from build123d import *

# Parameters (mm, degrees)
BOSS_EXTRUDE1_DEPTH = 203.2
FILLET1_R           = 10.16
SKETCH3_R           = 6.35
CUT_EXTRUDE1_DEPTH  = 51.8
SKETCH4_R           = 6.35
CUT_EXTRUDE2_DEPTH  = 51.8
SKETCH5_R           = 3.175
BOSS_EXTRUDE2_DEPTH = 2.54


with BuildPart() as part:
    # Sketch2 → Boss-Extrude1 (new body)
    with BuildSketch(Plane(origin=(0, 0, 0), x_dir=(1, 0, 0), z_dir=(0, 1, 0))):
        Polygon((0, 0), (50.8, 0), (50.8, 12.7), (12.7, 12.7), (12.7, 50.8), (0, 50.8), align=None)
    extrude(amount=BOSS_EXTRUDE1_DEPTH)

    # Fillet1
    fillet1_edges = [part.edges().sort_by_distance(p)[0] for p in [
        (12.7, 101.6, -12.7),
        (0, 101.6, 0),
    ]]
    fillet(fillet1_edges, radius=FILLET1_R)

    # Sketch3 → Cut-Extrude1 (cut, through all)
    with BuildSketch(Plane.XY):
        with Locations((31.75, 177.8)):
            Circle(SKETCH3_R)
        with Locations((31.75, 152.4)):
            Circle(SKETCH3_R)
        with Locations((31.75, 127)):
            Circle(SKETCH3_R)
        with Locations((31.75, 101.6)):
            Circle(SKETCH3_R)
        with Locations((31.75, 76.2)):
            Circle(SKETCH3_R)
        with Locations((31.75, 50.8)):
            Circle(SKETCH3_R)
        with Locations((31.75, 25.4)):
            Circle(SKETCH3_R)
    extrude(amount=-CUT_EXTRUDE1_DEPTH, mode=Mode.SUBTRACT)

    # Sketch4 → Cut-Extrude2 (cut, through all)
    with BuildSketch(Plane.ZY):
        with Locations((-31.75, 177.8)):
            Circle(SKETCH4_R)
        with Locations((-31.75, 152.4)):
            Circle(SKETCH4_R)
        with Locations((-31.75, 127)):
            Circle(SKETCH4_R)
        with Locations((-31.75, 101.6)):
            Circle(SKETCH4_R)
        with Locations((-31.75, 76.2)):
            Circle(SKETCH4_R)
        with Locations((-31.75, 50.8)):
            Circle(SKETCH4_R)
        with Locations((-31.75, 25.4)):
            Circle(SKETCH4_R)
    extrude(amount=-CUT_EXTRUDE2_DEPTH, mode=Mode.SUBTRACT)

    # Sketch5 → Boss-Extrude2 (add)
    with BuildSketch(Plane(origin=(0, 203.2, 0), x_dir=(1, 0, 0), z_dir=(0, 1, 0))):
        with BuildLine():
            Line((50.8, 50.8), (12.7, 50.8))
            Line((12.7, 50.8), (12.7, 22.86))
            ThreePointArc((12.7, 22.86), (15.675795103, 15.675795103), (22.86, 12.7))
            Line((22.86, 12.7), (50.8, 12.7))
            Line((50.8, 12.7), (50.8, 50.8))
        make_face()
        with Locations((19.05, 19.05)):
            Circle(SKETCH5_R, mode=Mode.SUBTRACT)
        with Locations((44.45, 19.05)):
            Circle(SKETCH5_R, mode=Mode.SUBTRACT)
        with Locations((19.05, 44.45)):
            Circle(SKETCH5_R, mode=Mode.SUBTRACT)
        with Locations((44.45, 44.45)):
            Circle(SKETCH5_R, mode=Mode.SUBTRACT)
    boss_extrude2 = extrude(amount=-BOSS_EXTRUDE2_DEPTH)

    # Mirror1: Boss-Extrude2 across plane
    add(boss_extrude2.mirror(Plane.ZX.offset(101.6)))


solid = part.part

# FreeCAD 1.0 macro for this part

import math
import FreeCAD as App
import Part
import Sketcher
from FreeCAD import Vector
Q = App.Units.Quantity


def edges_at(feature, points):
    """Names of the edges that pass closest to the given points."""
    edges = feature.Shape.Edges
    near = lambda p: min(range(len(edges)), key=lambda i: edges[i].distToShape(Part.Vertex(*p))[0])
    return sorted({f"Edge{near(p) + 1}" for p in points})

doc = App.newDocument("Part")
body = doc.addObject("PartDesign::Body", "Body")

sketch1 = body.newObject("Sketcher::SketchObject", "Sketch")
sketch1.AttachmentSupport = (doc.getObject("XZ_Plane"), [""])
sketch1.MapMode = "FlatFace"
sketch1.addGeometry(Part.LineSegment(Vector(0, 0, 0), Vector(50.8, 0, 0)), False)
sketch1.addGeometry(Part.LineSegment(Vector(50.8, 0, 0), Vector(50.8, -12.7, 0)), False)
sketch1.addGeometry(Part.LineSegment(Vector(50.8, -12.7, 0), Vector(12.7, -12.7, 0)), False)
sketch1.addGeometry(Part.LineSegment(Vector(12.7, -12.7, 0), Vector(12.7, -50.8, 0)), False)
sketch1.addGeometry(Part.LineSegment(Vector(12.7, -50.8, 0), Vector(0, -50.8, 0)), False)
sketch1.addGeometry(Part.LineSegment(Vector(0, -50.8, 0), Vector(0, 0, 0)), False)
sketch1.addConstraint(Sketcher.Constraint("Coincident", 0, 2, 1, 1))
sketch1.addConstraint(Sketcher.Constraint("Coincident", 1, 2, 2, 1))
sketch1.addConstraint(Sketcher.Constraint("Coincident", 2, 2, 3, 1))
sketch1.addConstraint(Sketcher.Constraint("Coincident", 3, 2, 4, 1))
sketch1.addConstraint(Sketcher.Constraint("Coincident", 4, 2, 5, 1))
sketch1.addConstraint(Sketcher.Constraint("Coincident", 5, 2, 0, 1))
sketch1.addConstraint(Sketcher.Constraint("Horizontal", 0))
sketch1.addConstraint(Sketcher.Constraint("Vertical", 1))
sketch1.addConstraint(Sketcher.Constraint("Horizontal", 2))
sketch1.addConstraint(Sketcher.Constraint("Vertical", 3))
sketch1.addConstraint(Sketcher.Constraint("Horizontal", 4))
sketch1.addConstraint(Sketcher.Constraint("Vertical", 5))
sketch1.addConstraint(Sketcher.Constraint("Coincident", 5, 2, -1, 1))
sketch1.addConstraint(Sketcher.Constraint("Equal", 4, 1))
sketch1.addConstraint(Sketcher.Constraint("Equal", 2, 3))
sketch1.addConstraint(Sketcher.Constraint("DistanceX", 0, 1, 0, 2, Q("2 in")))
sketch1.addConstraint(Sketcher.Constraint("DistanceX", 2, 2, 2, 1, Q("1.5 in")))
pad1 = body.newObject("PartDesign::Pad", "Pad")
pad1.Profile = sketch1
pad1.Length = Q("8 in")
pad1.Reversed = True
doc.recompute()

fillet = body.newObject("PartDesign::Fillet", "Fillet")
fillet.Base = (pad1, edges_at(pad1, [(12.7, 101.6, -12.7), (0, 101.6, 0)]))
fillet.Radius = Q("0.4 in")

sketch2 = body.newObject("Sketcher::SketchObject", "Sketch001")
sketch2.AttachmentSupport = (doc.getObject("XY_Plane"), [""])
sketch2.MapMode = "FlatFace"
sketch2.addGeometry(Part.Circle(Vector(31.75, 177.8, 0), Vector(0, 0, 1), 6.35), False)
sketch2.addGeometry(Part.Circle(Vector(31.75, 152.4, 0), Vector(0, 0, 1), 6.35), False)
sketch2.addGeometry(Part.Circle(Vector(31.75, 127, 0), Vector(0, 0, 1), 6.35), False)
sketch2.addGeometry(Part.Circle(Vector(31.75, 101.6, 0), Vector(0, 0, 1), 6.35), False)
sketch2.addGeometry(Part.Circle(Vector(31.75, 76.2, 0), Vector(0, 0, 1), 6.35), False)
sketch2.addGeometry(Part.Circle(Vector(31.75, 50.8, 0), Vector(0, 0, 1), 6.35), False)
sketch2.addGeometry(Part.Circle(Vector(31.75, 25.4, 0), Vector(0, 0, 1), 6.35), False)
sketch2.addConstraint(Sketcher.Constraint("Equal", 0, 1))
sketch2.addConstraint(Sketcher.Constraint("Equal", 1, 2))
sketch2.addConstraint(Sketcher.Constraint("Equal", 2, 3))
sketch2.addConstraint(Sketcher.Constraint("Equal", 3, 4))
sketch2.addConstraint(Sketcher.Constraint("Equal", 4, 5))
sketch2.addConstraint(Sketcher.Constraint("Equal", 5, 6))
sketch2.addConstraint(Sketcher.Constraint("Vertical", 0, 3, 1, 3))
sketch2.addConstraint(Sketcher.Constraint("Vertical", 1, 3, 2, 3))
sketch2.addConstraint(Sketcher.Constraint("Vertical", 2, 3, 3, 3))
sketch2.addConstraint(Sketcher.Constraint("Vertical", 3, 3, 4, 3))
sketch2.addConstraint(Sketcher.Constraint("Vertical", 4, 3, 5, 3))
sketch2.addConstraint(Sketcher.Constraint("Vertical", 5, 3, 6, 3))
sketch2.addConstraint(Sketcher.Constraint("Diameter", 0, Q("0.5 in")))
sketch2.addConstraint(Sketcher.Constraint("DistanceY", -1, 1, 0, 3, Q("7 in")))
sketch2.addConstraint(Sketcher.Constraint("DistanceY", -1, 1, 1, 3, Q("6 in")))
sketch2.addConstraint(Sketcher.Constraint("DistanceY", -1, 1, 2, 3, Q("5 in")))
sketch2.addConstraint(Sketcher.Constraint("DistanceY", -1, 1, 3, 3, Q("4 in")))
sketch2.addConstraint(Sketcher.Constraint("DistanceY", -1, 1, 4, 3, Q("3 in")))
sketch2.addConstraint(Sketcher.Constraint("DistanceY", -1, 1, 5, 3, Q("2 in")))
sketch2.addConstraint(Sketcher.Constraint("DistanceY", -1, 1, 6, 3, Q("1 in")))
sketch2.addConstraint(Sketcher.Constraint("DistanceX", -1, 1, 0, 3, Q("1.25 in")))
pocket1 = body.newObject("PartDesign::Pocket", "Pocket")
pocket1.Profile = sketch2
pocket1.Type = "ThroughAll"

sketch3 = body.newObject("Sketcher::SketchObject", "Sketch002")
sketch3.AttachmentSupport = (doc.getObject("YZ_Plane"), [""])
sketch3.MapMode = "FlatFace"
sketch3.addGeometry(Part.Circle(Vector(177.8, -31.75, 0), Vector(0, 0, 1), 6.35), False)
sketch3.addGeometry(Part.Circle(Vector(152.4, -31.75, 0), Vector(0, 0, 1), 6.35), False)
sketch3.addGeometry(Part.Circle(Vector(127, -31.75, 0), Vector(0, 0, 1), 6.35), False)
sketch3.addGeometry(Part.Circle(Vector(101.6, -31.75, 0), Vector(0, 0, 1), 6.35), False)
sketch3.addGeometry(Part.Circle(Vector(76.2, -31.75, 0), Vector(0, 0, 1), 6.35), False)
sketch3.addGeometry(Part.Circle(Vector(50.8, -31.75, 0), Vector(0, 0, 1), 6.35), False)
sketch3.addGeometry(Part.Circle(Vector(25.4, -31.75, 0), Vector(0, 0, 1), 6.35), False)
sketch3.addConstraint(Sketcher.Constraint("Equal", 0, 1))
sketch3.addConstraint(Sketcher.Constraint("Equal", 1, 2))
sketch3.addConstraint(Sketcher.Constraint("Equal", 2, 3))
sketch3.addConstraint(Sketcher.Constraint("Equal", 3, 4))
sketch3.addConstraint(Sketcher.Constraint("Equal", 4, 5))
sketch3.addConstraint(Sketcher.Constraint("Equal", 5, 6))
sketch3.addConstraint(Sketcher.Constraint("Horizontal", 0, 3, 1, 3))
sketch3.addConstraint(Sketcher.Constraint("Horizontal", 1, 3, 2, 3))
sketch3.addConstraint(Sketcher.Constraint("Horizontal", 2, 3, 3, 3))
sketch3.addConstraint(Sketcher.Constraint("Horizontal", 3, 3, 4, 3))
sketch3.addConstraint(Sketcher.Constraint("Horizontal", 4, 3, 5, 3))
sketch3.addConstraint(Sketcher.Constraint("Horizontal", 5, 3, 6, 3))
sketch3.addConstraint(Sketcher.Constraint("Diameter", 0, Q("0.5 in")))
sketch3.addConstraint(Sketcher.Constraint("DistanceX", -1, 1, 0, 3, Q("7 in")))
sketch3.addConstraint(Sketcher.Constraint("DistanceX", -1, 1, 1, 3, Q("6 in")))
sketch3.addConstraint(Sketcher.Constraint("DistanceX", -1, 1, 2, 3, Q("5 in")))
sketch3.addConstraint(Sketcher.Constraint("DistanceX", -1, 1, 3, 3, Q("4 in")))
sketch3.addConstraint(Sketcher.Constraint("DistanceX", -1, 1, 4, 3, Q("3 in")))
sketch3.addConstraint(Sketcher.Constraint("DistanceX", -1, 1, 5, 3, Q("2 in")))
sketch3.addConstraint(Sketcher.Constraint("DistanceX", -1, 1, 6, 3, Q("1 in")))
sketch3.addConstraint(Sketcher.Constraint("DistanceY", 0, 3, -1, 1, Q("1.25 in")))
pocket2 = body.newObject("PartDesign::Pocket", "Pocket001")
pocket2.Profile = sketch3
pocket2.Type = "ThroughAll"
pocket2.Reversed = True

sketch4 = body.newObject("Sketcher::SketchObject", "Sketch003")
sketch4.AttachmentSupport = (doc.getObject("XZ_Plane"), [""])
sketch4.MapMode = "FlatFace"
sketch4.AttachmentOffset = App.Placement(Vector(0, 0, -8 * 25.4), App.Rotation())
sketch4.addGeometry(Part.LineSegment(Vector(50.8, -50.8, 0), Vector(12.7, -50.8, 0)), False)
sketch4.addGeometry(Part.LineSegment(Vector(12.7, -50.8, 0), Vector(12.7, -22.86, 0)), False)
sketch4.addGeometry(Part.ArcOfCircle(Part.Circle(Vector(22.86, -22.86, 0), Vector(0, 0, 1), 10.16), math.radians(90), math.radians(180)), False)
sketch4.addGeometry(Part.LineSegment(Vector(22.86, -12.7, 0), Vector(50.8, -12.7, 0)), False)
sketch4.addGeometry(Part.LineSegment(Vector(50.8, -12.7, 0), Vector(50.8, -50.8, 0)), False)
sketch4.addGeometry(Part.Circle(Vector(19.05, -19.05, 0), Vector(0, 0, 1), 3.175), False)
sketch4.addGeometry(Part.Circle(Vector(44.45, -19.05, 0), Vector(0, 0, 1), 3.175), False)
sketch4.addGeometry(Part.Circle(Vector(19.05, -44.45, 0), Vector(0, 0, 1), 3.175), False)
sketch4.addGeometry(Part.Circle(Vector(44.45, -44.45, 0), Vector(0, 0, 1), 3.175), False)
sketch4.addConstraint(Sketcher.Constraint("Coincident", 0, 2, 1, 1))
sketch4.addConstraint(Sketcher.Constraint("Tangent", 1, 2, 2, 2))
sketch4.addConstraint(Sketcher.Constraint("Tangent", 2, 1, 3, 1))
sketch4.addConstraint(Sketcher.Constraint("Coincident", 3, 2, 4, 1))
sketch4.addConstraint(Sketcher.Constraint("Coincident", 4, 2, 0, 1))
sketch4.addConstraint(Sketcher.Constraint("Horizontal", 0))
sketch4.addConstraint(Sketcher.Constraint("Vertical", 1))
sketch4.addConstraint(Sketcher.Constraint("Horizontal", 3))
sketch4.addConstraint(Sketcher.Constraint("Vertical", 4))
sketch4.addConstraint(Sketcher.Constraint("Equal", 5, 6))
sketch4.addConstraint(Sketcher.Constraint("Equal", 6, 7))
sketch4.addConstraint(Sketcher.Constraint("Equal", 7, 8))
sketch4.addConstraint(Sketcher.Constraint("Horizontal", 5, 3, 6, 3))
sketch4.addConstraint(Sketcher.Constraint("Horizontal", 7, 3, 8, 3))
sketch4.addConstraint(Sketcher.Constraint("Vertical", 5, 3, 7, 3))
sketch4.addConstraint(Sketcher.Constraint("Vertical", 6, 3, 8, 3))
sketch4.addConstraint(Sketcher.Constraint("Equal", 3, 1))
sketch4.addConstraint(Sketcher.Constraint("Radius", 2, Q("0.4 in")))
sketch4.addConstraint(Sketcher.Constraint("Diameter", 5, Q("0.25 in")))
sketch4.addConstraint(Sketcher.Constraint("DistanceX", 0, 2, 0, 1, Q("1.5 in")))
sketch4.addConstraint(Sketcher.Constraint("DistanceY", 0, 2, -1, 1, Q("2 in")))
sketch4.addConstraint(Sketcher.Constraint("DistanceX", -1, 1, 3, 2, Q("2 in")))
sketch4.addConstraint(Sketcher.Constraint("DistanceX", 5, 3, 6, 3, Q("1 in")))
sketch4.addConstraint(Sketcher.Constraint("DistanceY", 7, 3, 5, 3, Q("1 in")))
sketch4.addConstraint(Sketcher.Constraint("DistanceX", -1, 1, 5, 3, Q("0.75 in")))
sketch4.addConstraint(Sketcher.Constraint("DistanceY", 5, 3, -1, 1, Q("0.75 in")))
pad2 = body.newObject("PartDesign::Pad", "Pad001")
pad2.Profile = sketch4
pad2.Length = Q("0.1 in")
doc.recompute()

datumplane = body.newObject("PartDesign::Plane", "DatumPlane")
datumplane.AttachmentSupport = (doc.getObject("XZ_Plane"), [""])
datumplane.MapMode = "FlatFace"
datumplane.AttachmentOffset = App.Placement(Vector(0, 0, -4 * 25.4), App.Rotation())
mirrored = body.newObject("PartDesign::Mirrored", "Mirrored")
mirrored.Originals = [pad2]
mirrored.MirrorPlane = (datumplane, [""])
body.Tip = mirrored

doc.recompute()
